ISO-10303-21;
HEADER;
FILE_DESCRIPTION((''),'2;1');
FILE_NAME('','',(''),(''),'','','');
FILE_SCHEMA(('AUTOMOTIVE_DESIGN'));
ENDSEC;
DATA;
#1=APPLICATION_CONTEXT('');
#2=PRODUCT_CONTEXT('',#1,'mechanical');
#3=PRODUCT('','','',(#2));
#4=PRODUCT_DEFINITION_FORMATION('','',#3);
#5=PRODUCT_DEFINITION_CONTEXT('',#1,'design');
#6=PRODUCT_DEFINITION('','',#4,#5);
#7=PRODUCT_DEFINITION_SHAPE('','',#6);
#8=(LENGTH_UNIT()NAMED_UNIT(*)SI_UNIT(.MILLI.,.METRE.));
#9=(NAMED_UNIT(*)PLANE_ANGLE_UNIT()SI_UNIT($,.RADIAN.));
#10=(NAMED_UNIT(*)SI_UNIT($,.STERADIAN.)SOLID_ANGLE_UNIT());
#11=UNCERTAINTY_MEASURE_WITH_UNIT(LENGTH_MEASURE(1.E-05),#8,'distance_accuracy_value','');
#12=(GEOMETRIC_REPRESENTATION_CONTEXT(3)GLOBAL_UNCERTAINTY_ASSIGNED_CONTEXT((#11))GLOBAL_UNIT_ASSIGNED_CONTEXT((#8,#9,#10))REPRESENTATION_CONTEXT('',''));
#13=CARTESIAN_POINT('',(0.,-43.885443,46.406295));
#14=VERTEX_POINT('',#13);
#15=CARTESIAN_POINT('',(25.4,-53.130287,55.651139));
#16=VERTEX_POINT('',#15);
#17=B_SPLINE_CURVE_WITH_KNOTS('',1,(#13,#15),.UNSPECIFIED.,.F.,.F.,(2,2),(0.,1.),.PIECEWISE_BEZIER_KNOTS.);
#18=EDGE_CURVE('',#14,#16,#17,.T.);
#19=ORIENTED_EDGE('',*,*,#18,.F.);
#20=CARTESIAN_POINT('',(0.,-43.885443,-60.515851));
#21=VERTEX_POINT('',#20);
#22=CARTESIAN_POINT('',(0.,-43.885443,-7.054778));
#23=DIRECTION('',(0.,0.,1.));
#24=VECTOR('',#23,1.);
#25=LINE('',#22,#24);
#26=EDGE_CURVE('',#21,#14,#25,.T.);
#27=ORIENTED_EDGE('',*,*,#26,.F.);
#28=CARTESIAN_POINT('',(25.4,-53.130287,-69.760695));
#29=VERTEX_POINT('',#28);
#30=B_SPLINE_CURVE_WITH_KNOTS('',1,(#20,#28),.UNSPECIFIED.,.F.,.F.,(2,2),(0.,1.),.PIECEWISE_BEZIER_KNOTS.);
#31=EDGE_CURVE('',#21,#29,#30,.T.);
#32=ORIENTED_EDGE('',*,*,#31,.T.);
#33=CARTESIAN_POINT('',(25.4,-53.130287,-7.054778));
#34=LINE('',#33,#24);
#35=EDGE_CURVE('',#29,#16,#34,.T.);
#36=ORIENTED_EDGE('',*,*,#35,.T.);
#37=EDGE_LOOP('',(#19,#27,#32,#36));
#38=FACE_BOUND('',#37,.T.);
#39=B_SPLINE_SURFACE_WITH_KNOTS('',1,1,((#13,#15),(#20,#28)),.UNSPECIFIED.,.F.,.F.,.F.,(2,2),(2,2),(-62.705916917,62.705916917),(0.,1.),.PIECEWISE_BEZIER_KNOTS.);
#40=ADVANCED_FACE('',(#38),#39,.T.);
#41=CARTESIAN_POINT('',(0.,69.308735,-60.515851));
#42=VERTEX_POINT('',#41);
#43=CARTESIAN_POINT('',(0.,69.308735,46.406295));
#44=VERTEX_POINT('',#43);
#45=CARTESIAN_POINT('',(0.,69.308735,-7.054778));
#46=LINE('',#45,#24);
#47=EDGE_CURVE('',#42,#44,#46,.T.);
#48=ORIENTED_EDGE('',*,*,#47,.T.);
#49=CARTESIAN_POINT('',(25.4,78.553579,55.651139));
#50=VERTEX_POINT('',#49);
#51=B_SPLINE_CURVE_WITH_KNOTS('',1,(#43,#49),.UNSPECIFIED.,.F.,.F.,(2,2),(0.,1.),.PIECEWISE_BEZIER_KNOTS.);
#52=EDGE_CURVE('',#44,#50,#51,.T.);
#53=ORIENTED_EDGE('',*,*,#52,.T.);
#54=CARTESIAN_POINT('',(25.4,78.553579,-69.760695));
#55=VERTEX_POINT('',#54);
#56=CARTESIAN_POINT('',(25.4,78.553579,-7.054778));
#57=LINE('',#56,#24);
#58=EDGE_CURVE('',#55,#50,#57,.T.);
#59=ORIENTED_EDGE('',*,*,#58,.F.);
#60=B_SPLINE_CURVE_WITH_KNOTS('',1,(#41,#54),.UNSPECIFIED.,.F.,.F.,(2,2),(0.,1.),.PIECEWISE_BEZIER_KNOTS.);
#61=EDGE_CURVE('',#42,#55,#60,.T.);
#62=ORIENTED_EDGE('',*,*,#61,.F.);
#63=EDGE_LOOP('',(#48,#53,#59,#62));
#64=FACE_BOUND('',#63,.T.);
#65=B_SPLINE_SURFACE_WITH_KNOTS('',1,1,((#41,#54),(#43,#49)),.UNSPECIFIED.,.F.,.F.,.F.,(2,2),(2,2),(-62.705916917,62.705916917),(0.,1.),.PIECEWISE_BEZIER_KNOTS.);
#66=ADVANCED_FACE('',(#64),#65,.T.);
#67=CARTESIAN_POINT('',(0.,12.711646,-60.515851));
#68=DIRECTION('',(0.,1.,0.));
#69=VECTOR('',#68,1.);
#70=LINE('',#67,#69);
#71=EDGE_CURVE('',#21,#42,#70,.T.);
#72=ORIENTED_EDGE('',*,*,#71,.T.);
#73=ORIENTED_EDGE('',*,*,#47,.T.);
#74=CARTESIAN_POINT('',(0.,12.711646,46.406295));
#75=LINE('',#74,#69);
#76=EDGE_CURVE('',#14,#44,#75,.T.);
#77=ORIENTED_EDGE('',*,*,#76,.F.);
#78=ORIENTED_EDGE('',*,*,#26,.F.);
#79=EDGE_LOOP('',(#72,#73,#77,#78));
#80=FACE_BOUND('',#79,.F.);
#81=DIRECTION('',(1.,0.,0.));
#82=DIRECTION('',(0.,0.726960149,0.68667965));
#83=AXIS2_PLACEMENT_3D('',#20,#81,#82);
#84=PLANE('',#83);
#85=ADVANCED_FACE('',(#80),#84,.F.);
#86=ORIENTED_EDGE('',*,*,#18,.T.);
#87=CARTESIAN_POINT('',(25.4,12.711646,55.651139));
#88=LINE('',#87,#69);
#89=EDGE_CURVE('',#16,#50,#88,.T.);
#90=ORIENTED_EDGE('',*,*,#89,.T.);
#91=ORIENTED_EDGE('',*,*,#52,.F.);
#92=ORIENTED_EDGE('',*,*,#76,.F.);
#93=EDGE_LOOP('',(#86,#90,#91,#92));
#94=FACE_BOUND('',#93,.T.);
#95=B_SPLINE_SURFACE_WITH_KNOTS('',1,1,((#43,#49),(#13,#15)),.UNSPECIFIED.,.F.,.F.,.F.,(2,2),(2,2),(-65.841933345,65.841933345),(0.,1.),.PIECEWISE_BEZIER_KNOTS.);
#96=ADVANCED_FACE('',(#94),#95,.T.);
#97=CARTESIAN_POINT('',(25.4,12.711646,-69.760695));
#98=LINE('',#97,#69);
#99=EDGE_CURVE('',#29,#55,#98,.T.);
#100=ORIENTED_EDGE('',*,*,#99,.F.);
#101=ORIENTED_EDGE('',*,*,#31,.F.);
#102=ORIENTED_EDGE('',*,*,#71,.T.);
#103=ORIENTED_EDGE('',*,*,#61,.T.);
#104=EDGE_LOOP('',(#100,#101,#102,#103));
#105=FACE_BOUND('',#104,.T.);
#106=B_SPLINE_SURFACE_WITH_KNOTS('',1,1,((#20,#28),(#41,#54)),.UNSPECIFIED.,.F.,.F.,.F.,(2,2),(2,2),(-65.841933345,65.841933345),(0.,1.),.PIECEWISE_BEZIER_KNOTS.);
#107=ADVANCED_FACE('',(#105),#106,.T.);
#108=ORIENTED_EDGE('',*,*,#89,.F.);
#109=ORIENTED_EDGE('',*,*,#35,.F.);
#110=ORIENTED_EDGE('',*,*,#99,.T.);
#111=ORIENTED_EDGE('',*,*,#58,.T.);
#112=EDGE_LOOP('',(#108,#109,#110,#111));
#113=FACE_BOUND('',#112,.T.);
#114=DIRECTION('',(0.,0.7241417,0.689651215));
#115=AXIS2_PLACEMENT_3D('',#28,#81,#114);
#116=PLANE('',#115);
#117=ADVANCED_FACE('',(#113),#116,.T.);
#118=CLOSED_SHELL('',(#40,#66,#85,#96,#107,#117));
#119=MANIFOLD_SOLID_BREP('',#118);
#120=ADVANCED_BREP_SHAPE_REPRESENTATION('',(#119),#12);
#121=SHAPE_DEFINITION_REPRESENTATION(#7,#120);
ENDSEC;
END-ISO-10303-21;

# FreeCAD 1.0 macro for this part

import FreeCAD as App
import Part
import Sketcher
Q = App.Units.Quantity

doc = App.newDocument("Part")
body = doc.addObject("PartDesign::Body", "Body")

sketch1 = body.newObject("Sketcher::SketchObject", "Sketch")
sketch1.AttachmentSupport = (doc.getObject("YZ_Plane"), [""])
sketch1.MapMode = "FlatFace"
sketch1.addGeometry([
    Part.LineSegment(App.Vector(-44, 46, 0), App.Vector(-44, -61, 0)),
    Part.LineSegment(App.Vector(-44, -61, 0), App.Vector(69, -61, 0)),
    Part.LineSegment(App.Vector(69, -61, 0), App.Vector(69, 46, 0)),
    Part.LineSegment(App.Vector(69, 46, 0), App.Vector(-44, 46, 0)),
], False)
sketch1.addConstraint([
    Sketcher.Constraint("Coincident", 0, 2, 1, 1),
    Sketcher.Constraint("Coincident", 1, 2, 2, 1),
    Sketcher.Constraint("Coincident", 2, 2, 3, 1),
    Sketcher.Constraint("Coincident", 3, 2, 0, 1),
    Sketcher.Constraint("Vertical", 0),
    Sketcher.Constraint("Horizontal", 1),
    Sketcher.Constraint("Vertical", 2),
    Sketcher.Constraint("Horizontal", 3),
    Sketcher.Constraint("DistanceX", 1, 1, 1, 2, 113.194179),
    Sketcher.Constraint("DistanceY", 0, 2, 0, 1, 106.922146),
    Sketcher.Constraint("DistanceY", 0, 2, -1, 1, 60.515851),
    Sketcher.Constraint("DistanceX", 0, 2, -1, 1, 43.885443),
])
pad1 = body.newObject("PartDesign::Pad", "Pad")
pad1.Profile = sketch1
pad1.Length = Q("1 in")
pad1.TaperAngle = 20

doc.recompute()
